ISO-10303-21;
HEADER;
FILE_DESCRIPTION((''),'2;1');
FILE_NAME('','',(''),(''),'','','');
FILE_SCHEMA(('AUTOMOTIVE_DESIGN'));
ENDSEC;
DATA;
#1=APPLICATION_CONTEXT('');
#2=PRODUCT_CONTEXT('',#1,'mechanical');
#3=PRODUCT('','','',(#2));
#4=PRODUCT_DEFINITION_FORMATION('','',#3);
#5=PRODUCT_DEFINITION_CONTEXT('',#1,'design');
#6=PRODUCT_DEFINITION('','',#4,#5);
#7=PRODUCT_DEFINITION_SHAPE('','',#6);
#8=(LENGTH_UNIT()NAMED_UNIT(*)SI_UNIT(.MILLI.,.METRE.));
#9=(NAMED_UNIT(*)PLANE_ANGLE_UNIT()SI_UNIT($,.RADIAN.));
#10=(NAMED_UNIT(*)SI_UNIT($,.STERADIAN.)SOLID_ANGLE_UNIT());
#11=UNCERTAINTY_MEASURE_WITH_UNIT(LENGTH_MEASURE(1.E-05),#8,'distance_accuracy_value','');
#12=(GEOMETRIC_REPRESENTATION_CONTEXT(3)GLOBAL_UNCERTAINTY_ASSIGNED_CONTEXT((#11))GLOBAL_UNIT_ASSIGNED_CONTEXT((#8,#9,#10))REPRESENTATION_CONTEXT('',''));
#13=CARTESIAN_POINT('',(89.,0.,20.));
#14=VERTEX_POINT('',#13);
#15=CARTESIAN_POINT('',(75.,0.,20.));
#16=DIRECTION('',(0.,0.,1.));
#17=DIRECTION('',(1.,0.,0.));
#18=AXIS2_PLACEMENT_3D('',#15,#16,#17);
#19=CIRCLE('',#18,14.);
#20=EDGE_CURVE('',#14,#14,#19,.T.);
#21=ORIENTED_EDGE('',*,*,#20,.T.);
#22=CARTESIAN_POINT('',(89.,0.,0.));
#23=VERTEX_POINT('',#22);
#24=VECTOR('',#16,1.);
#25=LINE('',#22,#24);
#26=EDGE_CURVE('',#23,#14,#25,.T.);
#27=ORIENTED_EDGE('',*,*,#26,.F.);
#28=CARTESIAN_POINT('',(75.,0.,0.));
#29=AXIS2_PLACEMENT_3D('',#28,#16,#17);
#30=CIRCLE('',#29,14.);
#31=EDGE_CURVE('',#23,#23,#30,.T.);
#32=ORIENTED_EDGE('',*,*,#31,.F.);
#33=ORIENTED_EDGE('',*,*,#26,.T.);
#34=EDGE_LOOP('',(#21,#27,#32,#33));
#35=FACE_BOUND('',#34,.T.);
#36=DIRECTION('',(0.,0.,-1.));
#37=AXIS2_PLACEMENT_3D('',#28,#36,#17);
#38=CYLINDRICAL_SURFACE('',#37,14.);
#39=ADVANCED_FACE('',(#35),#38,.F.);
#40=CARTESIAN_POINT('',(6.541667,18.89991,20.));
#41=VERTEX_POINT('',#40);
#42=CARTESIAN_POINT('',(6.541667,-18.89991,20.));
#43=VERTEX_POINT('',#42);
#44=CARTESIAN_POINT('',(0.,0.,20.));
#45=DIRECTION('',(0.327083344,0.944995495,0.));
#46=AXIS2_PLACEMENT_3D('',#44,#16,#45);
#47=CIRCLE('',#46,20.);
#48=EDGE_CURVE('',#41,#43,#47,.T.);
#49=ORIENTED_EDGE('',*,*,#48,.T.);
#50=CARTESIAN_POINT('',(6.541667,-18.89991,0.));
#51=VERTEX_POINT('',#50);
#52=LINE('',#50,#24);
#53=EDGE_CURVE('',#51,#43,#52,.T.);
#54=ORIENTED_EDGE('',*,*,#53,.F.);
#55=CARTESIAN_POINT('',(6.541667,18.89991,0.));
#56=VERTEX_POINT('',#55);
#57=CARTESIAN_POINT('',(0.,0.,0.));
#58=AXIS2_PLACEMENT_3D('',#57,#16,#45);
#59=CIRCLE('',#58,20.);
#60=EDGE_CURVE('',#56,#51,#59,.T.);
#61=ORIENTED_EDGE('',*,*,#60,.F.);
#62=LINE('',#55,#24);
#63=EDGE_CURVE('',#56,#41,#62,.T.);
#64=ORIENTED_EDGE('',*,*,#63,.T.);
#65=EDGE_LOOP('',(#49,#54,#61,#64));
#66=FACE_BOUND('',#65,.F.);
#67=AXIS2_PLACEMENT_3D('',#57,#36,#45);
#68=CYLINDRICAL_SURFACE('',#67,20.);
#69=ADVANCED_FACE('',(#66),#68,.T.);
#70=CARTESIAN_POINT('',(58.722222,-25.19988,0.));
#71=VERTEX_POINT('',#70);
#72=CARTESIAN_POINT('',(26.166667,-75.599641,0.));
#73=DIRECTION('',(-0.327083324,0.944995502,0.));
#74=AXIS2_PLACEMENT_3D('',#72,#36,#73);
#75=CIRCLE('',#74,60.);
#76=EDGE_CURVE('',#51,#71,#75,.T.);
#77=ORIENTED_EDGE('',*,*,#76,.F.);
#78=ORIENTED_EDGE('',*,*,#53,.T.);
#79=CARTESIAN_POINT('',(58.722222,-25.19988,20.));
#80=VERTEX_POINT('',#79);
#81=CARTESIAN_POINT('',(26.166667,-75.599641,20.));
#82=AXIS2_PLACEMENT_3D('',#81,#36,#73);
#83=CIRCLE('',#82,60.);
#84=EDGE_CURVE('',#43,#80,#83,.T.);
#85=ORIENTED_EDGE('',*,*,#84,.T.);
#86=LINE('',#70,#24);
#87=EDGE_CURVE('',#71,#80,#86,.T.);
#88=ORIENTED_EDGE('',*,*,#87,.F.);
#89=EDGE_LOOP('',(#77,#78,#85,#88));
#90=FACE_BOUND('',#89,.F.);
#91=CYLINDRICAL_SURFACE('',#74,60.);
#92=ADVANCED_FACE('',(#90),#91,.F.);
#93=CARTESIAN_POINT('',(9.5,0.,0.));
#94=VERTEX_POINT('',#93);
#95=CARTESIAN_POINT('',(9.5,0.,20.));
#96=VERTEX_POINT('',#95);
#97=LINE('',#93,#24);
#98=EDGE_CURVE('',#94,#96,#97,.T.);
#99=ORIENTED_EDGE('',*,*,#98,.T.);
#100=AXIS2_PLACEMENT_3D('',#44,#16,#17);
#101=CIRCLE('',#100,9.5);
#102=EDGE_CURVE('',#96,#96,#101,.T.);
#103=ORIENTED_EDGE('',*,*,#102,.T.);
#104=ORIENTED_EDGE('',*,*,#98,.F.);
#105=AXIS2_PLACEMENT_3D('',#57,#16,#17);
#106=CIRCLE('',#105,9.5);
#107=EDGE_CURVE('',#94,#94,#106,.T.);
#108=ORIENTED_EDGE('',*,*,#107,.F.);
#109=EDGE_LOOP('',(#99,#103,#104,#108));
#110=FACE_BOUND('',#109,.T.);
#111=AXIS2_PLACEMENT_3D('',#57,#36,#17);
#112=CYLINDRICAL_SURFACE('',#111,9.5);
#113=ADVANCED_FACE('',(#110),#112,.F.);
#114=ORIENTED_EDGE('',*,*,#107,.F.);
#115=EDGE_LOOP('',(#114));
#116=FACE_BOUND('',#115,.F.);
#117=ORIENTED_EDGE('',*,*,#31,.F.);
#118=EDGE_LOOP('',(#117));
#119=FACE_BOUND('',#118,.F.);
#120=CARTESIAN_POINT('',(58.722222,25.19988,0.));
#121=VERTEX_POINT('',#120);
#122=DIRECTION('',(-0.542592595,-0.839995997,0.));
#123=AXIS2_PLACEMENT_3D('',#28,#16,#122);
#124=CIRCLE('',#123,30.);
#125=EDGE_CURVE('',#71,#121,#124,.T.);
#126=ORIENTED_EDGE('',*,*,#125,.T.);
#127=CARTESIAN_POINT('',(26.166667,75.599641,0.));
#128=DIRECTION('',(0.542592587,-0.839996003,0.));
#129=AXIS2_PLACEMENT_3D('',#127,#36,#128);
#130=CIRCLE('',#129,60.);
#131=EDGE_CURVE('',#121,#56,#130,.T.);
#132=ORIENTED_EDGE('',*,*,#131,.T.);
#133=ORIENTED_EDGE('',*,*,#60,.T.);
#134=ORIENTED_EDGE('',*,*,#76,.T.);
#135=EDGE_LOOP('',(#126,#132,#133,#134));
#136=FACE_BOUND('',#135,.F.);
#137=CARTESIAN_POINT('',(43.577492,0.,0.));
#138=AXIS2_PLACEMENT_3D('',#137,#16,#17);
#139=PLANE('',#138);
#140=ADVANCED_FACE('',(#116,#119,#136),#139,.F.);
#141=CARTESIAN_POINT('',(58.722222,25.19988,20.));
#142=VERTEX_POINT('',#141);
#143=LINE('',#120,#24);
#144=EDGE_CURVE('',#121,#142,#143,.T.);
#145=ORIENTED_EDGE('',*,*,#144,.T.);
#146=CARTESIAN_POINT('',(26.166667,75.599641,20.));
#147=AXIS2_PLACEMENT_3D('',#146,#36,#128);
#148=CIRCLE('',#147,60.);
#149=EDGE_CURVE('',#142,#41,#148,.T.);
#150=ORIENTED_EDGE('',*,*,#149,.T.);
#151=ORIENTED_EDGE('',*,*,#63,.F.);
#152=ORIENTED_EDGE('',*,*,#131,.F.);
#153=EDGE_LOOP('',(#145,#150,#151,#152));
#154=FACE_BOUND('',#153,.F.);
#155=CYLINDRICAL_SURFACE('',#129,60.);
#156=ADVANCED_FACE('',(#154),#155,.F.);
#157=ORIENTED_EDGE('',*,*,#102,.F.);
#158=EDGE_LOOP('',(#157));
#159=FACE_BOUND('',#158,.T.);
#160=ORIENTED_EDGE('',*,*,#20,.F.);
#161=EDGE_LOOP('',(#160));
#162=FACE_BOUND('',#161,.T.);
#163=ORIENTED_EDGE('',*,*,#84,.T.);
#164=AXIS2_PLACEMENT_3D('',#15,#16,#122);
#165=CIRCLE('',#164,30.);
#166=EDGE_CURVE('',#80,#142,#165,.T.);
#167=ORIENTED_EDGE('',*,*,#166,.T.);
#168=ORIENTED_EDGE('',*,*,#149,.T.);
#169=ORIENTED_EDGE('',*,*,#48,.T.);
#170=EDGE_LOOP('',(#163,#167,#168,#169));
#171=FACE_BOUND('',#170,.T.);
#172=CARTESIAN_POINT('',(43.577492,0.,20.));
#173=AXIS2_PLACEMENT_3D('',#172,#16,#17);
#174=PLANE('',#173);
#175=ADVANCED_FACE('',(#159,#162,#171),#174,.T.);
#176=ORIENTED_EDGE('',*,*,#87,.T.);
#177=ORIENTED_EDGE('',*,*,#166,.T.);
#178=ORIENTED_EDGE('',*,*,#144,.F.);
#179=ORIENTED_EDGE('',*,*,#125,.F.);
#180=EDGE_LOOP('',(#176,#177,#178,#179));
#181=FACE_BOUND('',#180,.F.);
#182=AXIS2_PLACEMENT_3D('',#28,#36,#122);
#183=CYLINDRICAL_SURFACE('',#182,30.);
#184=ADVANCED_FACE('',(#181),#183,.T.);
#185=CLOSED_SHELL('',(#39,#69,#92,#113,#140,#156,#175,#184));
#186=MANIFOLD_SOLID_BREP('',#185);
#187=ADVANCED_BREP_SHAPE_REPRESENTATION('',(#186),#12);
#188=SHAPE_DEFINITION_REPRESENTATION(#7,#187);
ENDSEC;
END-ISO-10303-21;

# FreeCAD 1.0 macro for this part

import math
import FreeCAD as App
import Part
import Sketcher
from FreeCAD import Vector

doc = App.newDocument("Part")
params = doc.addObject("Spreadsheet::Sheet", "Params")
for row, (alias, value) in enumerate([
    ("sketch1_diameter", "19 mm"),
    ("sketch1_diameter2", "28 mm"),
    ("sketch1_radius", "60 mm"),
    ("sketch1_radius2", "20 mm"),
    ("sketch1_radius3", "30 mm"),
    ("pad1_length", "20 mm"),
], start=1):
    params.set(f"A{row}", alias)
    params.set(f"B{row}", "=" + value)
    params.setAlias(f"B{row}", alias)

body = doc.addObject("PartDesign::Body", "Body")

sketch1 = body.newObject("Sketcher::SketchObject", "Sketch")
sketch1.AttachmentSupport = (doc.getObject("XY_Plane"), [""])
sketch1.MapMode = "FlatFace"
sketch1.addGeometry(Part.ArcOfCircle(Part.Circle(Vector(26.166667, 75.599641, 0), Vector(0, 0, 1), 60), math.radians(-109.09184), math.radians(-57.139698)), False)
sketch1.addGeometry(Part.ArcOfCircle(Part.Circle(Vector(0, 0, 0), Vector(0, 0, 1), 20), math.radians(70.908158), math.radians(289.091842)), False)
sketch1.addGeometry(Part.ArcOfCircle(Part.Circle(Vector(26.166667, -75.599641, 0), Vector(0, 0, 1), 60), math.radians(57.139698), math.radians(109.09184)), False)
sketch1.addGeometry(Part.ArcOfCircle(Part.Circle(Vector(75, 0, 0), Vector(0, 0, 1), 30), math.radians(-122.860303), math.radians(122.860303)), False)
sketch1.addGeometry(Part.Circle(Vector(0, 0, 0), Vector(0, 0, 1), 9.5), False)
sketch1.addGeometry(Part.Circle(Vector(75, 0, 0), Vector(0, 0, 1), 14), False)
sketch1.addConstraint(Sketcher.Constraint("Tangent", 0, 1, 1, 1))
sketch1.addConstraint(Sketcher.Constraint("Tangent", 1, 2, 2, 2))
sketch1.addConstraint(Sketcher.Constraint("Tangent", 2, 1, 3, 1))
sketch1.addConstraint(Sketcher.Constraint("Tangent", 3, 2, 0, 2))
sketch1.addConstraint(Sketcher.Constraint("Coincident", 1, 3, -1, 1))
sketch1.addConstraint(Sketcher.Constraint("Coincident", 4, 3, -1, 1))
sketch1.addConstraint(Sketcher.Constraint("Coincident", 5, 3, 3, 3))
sketch1.addConstraint(Sketcher.Constraint("Equal", 0, 2))
sketch1.addConstraint(Sketcher.Constraint("PointOnObject", 3, 3, -1))
sketch1.addConstraint(Sketcher.Constraint("Diameter", 4, 19.0))
sketch1.addConstraint(Sketcher.Constraint("Diameter", 5, 28.0))
sketch1.addConstraint(Sketcher.Constraint("Radius", 0, 60.0))
sketch1.addConstraint(Sketcher.Constraint("Radius", 1, 20.0))
sketch1.addConstraint(Sketcher.Constraint("Radius", 3, 30.0))
sketch1.addConstraint(Sketcher.Constraint("DistanceX", -1, 1, 3, 3, 75.0))
sketch1.setExpression("Constraints[9]", "Params.sketch1_diameter")
sketch1.setExpression("Constraints[10]", "Params.sketch1_diameter2")
sketch1.setExpression("Constraints[11]", "Params.sketch1_radius")
sketch1.setExpression("Constraints[12]", "Params.sketch1_radius2")
sketch1.setExpression("Constraints[13]", "Params.sketch1_radius3")
pad1 = body.newObject("PartDesign::Pad", "Pad")
pad1.Profile = sketch1
pad1.setExpression("Length", "Params.pad1_length")

doc.recompute()
